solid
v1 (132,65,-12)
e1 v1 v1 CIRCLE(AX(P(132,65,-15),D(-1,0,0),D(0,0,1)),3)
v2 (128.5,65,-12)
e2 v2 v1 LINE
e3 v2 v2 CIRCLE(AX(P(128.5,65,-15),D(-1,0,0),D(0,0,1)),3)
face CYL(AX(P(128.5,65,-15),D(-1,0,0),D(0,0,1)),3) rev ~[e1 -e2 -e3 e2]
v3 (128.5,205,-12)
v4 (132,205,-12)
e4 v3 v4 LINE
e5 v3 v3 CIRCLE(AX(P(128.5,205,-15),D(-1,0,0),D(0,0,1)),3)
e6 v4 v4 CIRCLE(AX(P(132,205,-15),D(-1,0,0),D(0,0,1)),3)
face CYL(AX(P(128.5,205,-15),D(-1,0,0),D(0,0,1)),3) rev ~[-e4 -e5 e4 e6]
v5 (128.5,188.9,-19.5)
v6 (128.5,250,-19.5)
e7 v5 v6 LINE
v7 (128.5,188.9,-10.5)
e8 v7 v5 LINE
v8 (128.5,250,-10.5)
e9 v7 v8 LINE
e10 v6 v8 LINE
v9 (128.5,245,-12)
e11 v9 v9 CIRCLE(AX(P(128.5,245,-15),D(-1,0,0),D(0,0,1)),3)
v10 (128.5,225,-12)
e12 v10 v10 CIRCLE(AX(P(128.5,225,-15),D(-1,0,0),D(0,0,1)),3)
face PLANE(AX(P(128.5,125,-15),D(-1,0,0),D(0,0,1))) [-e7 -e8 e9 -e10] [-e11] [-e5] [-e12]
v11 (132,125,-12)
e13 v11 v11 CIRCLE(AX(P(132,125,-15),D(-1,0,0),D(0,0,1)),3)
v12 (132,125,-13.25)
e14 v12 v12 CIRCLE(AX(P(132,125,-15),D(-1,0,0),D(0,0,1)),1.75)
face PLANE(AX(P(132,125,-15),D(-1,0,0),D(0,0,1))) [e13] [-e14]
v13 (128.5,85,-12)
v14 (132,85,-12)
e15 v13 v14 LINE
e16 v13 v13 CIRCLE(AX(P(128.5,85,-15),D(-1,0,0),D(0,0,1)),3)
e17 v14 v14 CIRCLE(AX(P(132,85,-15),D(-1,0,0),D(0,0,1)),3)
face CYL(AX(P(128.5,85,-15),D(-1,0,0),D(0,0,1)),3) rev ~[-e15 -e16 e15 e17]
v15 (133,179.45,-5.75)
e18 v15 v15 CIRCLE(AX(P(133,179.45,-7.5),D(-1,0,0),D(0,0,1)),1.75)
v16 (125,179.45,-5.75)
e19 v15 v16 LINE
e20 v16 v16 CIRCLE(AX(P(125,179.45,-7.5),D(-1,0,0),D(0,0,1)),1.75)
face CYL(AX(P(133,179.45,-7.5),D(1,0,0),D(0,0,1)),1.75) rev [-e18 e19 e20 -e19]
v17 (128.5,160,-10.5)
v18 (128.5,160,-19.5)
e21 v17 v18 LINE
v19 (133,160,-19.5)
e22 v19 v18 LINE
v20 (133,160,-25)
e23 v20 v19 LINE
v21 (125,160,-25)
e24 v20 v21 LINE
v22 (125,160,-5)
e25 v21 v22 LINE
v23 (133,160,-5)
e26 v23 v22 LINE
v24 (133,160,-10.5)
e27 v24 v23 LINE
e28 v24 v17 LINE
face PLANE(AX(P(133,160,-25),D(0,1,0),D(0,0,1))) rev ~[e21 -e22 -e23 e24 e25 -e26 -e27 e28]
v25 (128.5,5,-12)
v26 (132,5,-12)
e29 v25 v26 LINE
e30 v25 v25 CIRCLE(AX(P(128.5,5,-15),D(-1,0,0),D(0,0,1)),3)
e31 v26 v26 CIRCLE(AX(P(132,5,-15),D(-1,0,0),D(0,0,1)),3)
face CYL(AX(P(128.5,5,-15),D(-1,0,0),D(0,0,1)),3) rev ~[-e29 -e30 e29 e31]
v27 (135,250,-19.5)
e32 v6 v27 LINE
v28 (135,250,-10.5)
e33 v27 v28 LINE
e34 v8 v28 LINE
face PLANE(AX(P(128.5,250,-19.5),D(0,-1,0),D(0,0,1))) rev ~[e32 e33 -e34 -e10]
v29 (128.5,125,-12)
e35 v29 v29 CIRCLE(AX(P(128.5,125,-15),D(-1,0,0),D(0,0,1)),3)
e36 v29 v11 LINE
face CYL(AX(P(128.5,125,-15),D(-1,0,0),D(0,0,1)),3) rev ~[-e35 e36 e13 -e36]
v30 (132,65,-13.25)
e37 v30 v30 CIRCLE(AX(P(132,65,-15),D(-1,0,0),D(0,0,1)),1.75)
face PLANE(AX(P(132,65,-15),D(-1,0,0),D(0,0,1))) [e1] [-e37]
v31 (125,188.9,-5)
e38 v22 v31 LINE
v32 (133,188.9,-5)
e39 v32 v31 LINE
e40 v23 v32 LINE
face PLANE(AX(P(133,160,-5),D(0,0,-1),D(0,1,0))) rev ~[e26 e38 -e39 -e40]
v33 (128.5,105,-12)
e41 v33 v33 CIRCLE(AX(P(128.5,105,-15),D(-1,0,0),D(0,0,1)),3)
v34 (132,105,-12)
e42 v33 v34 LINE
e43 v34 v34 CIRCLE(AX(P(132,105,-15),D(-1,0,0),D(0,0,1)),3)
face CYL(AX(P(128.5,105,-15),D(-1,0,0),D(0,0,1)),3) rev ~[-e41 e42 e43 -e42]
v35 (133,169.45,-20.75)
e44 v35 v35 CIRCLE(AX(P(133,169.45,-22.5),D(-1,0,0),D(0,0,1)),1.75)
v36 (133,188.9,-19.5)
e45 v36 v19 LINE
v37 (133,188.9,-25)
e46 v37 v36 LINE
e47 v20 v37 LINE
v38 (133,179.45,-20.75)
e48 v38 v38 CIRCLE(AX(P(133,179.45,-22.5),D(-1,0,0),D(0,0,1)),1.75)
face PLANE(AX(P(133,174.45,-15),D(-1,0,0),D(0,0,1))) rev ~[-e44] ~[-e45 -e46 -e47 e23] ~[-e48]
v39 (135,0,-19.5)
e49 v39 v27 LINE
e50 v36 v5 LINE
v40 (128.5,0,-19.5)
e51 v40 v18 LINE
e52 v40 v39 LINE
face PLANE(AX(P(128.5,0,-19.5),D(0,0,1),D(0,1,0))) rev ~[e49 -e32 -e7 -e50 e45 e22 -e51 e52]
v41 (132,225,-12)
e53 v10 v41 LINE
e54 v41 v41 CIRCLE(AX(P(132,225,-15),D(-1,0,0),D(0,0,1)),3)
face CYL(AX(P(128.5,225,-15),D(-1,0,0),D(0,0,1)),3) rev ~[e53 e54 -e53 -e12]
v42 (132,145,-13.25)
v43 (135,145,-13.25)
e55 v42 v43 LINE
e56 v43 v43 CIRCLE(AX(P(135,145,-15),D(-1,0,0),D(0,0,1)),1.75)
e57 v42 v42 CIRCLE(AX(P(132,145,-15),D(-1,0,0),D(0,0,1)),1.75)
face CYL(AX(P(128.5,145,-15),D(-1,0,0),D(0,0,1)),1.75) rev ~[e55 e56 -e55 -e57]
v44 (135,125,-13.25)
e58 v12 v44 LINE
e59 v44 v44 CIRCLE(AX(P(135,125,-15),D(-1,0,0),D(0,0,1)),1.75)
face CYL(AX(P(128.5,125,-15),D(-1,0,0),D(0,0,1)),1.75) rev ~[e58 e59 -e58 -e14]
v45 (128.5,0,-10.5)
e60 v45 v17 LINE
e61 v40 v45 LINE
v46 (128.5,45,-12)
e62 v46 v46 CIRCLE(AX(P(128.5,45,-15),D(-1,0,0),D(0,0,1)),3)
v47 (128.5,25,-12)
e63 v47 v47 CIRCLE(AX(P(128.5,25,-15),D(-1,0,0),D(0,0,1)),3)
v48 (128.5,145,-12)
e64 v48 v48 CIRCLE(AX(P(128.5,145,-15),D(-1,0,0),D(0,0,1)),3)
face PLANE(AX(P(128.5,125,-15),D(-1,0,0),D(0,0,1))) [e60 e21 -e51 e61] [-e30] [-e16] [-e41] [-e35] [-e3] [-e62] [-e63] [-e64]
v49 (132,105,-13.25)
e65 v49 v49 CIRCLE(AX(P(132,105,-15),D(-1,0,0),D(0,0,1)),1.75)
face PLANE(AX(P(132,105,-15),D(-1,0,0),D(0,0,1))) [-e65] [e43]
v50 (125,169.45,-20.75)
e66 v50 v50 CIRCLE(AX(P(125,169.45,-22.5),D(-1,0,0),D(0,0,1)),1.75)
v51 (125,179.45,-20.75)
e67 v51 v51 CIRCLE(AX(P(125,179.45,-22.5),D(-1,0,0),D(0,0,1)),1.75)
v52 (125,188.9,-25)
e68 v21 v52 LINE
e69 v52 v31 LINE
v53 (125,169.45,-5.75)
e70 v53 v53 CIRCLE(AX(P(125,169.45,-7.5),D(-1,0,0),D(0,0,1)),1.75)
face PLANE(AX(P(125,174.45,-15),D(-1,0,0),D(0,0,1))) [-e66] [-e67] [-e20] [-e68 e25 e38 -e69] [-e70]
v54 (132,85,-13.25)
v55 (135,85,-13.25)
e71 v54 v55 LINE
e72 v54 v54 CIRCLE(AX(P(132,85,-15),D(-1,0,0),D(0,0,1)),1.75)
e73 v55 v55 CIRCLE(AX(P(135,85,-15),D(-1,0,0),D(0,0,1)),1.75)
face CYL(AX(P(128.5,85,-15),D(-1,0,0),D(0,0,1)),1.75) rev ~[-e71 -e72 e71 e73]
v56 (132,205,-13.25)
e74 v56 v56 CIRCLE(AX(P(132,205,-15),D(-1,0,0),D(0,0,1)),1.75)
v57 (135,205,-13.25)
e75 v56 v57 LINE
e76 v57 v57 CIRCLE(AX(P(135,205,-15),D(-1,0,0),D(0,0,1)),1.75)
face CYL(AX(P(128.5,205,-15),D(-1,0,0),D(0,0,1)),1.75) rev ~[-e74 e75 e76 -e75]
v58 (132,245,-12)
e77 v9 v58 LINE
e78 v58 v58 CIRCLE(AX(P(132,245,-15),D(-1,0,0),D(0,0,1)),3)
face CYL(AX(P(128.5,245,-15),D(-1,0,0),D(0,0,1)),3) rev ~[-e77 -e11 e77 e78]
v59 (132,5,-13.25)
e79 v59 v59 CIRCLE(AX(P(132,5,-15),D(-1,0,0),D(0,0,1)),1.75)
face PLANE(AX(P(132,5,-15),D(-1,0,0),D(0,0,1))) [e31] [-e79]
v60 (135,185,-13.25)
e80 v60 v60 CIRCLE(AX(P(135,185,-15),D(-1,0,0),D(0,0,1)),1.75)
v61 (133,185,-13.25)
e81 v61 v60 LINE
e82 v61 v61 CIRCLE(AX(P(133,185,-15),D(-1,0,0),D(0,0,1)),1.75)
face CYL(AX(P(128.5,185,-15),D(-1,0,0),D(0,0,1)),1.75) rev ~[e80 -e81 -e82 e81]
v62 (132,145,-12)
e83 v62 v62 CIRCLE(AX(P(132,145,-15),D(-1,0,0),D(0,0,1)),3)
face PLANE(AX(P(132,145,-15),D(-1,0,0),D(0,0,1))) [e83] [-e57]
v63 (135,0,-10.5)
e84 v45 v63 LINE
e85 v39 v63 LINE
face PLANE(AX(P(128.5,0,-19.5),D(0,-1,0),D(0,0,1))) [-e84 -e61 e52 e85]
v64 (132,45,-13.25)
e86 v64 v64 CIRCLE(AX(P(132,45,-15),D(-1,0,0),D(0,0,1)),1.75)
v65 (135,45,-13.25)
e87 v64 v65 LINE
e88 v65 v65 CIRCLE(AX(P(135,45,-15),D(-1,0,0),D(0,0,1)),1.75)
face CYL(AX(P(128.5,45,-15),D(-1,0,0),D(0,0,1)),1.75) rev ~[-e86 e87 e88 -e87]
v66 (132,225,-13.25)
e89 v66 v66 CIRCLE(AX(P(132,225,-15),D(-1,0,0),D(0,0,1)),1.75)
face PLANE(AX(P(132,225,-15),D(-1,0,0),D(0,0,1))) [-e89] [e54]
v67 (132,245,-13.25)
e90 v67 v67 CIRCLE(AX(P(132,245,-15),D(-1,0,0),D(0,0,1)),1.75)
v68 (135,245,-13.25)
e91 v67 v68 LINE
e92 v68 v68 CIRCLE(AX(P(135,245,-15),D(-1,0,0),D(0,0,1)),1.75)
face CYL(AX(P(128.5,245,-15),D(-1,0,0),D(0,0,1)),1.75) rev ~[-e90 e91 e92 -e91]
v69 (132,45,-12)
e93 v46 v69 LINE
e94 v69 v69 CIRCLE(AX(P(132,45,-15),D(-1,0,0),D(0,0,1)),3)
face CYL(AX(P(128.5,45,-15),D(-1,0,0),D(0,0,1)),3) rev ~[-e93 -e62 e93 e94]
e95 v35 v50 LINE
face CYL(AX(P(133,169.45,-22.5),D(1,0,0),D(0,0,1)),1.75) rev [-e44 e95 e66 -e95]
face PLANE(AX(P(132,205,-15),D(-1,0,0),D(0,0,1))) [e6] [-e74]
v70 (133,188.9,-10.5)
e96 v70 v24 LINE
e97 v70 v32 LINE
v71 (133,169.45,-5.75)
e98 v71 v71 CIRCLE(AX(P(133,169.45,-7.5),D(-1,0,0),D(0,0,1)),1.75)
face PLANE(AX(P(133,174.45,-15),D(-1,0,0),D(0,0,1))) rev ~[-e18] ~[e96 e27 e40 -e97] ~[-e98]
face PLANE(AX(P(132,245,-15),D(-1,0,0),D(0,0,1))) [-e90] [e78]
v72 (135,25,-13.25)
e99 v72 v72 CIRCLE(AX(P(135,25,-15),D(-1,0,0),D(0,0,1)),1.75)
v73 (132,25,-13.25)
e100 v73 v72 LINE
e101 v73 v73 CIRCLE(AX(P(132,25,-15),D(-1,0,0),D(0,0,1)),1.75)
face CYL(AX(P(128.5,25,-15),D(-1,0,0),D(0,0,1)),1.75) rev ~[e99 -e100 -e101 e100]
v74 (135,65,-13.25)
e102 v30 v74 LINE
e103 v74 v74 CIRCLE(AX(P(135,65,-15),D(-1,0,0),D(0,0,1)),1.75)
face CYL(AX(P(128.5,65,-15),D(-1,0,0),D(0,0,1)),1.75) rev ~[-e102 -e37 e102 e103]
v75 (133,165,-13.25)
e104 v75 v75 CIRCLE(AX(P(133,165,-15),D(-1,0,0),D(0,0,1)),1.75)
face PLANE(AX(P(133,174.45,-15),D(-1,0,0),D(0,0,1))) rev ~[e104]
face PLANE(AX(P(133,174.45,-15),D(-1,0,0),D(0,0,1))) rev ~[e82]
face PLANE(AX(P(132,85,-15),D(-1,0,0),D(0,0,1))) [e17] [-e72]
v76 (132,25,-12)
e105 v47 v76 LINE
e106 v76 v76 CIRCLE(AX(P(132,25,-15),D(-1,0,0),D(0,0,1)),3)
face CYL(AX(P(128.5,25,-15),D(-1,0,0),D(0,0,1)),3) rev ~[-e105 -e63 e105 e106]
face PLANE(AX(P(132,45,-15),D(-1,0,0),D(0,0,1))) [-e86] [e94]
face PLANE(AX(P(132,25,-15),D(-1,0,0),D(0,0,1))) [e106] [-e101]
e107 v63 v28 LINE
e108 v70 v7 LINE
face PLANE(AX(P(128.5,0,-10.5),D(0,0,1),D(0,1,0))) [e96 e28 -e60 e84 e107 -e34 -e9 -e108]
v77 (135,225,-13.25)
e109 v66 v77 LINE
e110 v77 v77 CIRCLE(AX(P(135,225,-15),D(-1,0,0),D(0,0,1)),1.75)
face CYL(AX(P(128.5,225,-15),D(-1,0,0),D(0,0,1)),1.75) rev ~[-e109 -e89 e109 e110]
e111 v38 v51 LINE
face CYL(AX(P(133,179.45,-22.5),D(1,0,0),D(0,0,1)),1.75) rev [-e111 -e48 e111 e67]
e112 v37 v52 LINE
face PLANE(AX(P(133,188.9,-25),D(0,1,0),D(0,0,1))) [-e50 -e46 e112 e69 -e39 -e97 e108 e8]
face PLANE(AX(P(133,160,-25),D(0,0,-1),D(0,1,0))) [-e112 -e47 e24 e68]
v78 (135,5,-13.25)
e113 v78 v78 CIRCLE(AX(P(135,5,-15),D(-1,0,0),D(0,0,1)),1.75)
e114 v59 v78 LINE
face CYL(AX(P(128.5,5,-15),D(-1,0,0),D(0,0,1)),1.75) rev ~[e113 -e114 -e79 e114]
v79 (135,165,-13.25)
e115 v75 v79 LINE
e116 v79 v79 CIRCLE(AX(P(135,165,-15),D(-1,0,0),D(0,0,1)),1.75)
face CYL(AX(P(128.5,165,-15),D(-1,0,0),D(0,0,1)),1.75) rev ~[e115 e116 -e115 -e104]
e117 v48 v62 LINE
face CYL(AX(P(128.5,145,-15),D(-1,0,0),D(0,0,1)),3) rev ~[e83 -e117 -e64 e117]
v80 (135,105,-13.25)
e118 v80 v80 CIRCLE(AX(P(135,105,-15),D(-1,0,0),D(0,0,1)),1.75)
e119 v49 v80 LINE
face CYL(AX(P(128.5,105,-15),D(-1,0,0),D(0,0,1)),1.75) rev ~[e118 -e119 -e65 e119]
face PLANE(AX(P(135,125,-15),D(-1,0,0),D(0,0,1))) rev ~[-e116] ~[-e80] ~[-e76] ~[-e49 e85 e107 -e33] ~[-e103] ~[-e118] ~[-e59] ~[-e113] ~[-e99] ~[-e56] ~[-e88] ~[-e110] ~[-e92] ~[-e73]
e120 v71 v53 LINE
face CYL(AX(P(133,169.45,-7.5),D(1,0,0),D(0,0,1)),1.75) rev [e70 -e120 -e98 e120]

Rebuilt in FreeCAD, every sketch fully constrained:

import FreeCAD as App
import Part
import Sketcher

V = App.Vector
Q = App.Units.Quantity


def add_polygon(sketch, points):
    """Adds a closed chain of lines whose ends are joined by coincident constraints."""
    first, n = sketch.GeometryCount, len(points)
    for a, b in zip(points, points[1:] + points[:1]):
        sketch.addGeometry(Part.LineSegment(App.Vector(*a, 0), App.Vector(*b, 0)), False)
    for i in range(n):
        sketch.addConstraint(Sketcher.Constraint("Coincident", first + i, 2, first + (i + 1) % n, 1))

doc = App.newDocument("Part")
params = doc.addObject("Spreadsheet::Sheet", "Params")
for row, (alias, value) in enumerate([
    ("sketch1_width", "9 mm"),
    ("sketch1_height", "250 mm"),
    ("pad1_length", "6.5 mm"),
    ("sketch2_diameter", "3.5 mm"),
    ("pocket1_length", "6.5 mm"),
    ("linearpattern_pitch", "20 mm"),
    ("sketch3_diameter", "6 mm"),
    ("pocket2_length", "3.5 mm"),
    ("linearpattern2_pitch", "20 mm"),
    ("sketch4_diameter", "3.5 mm"),
    ("sketch4_width", "20 mm"),
    ("sketch4_height", "28.9 mm"),
    ("pad2_length", "8 mm"),
], start=1):
    params.set(f"A{row}", alias)
    params.set(f"B{row}", "=" + value)
    params.setAlias(f"B{row}", alias)

body = doc.addObject("PartDesign::Body", "Body")

sketch1 = body.newObject("Sketcher::SketchObject", "Sketch")
sketch1.AttachmentSupport = (doc.getObject("XY_Plane"), [""])
sketch1.MapMode = "FlatFace"
add_polygon(sketch1, [(-4, 250), (-4, 0), (4, 0), (4, 250)])
sketch1.addConstraint([
    Sketcher.Constraint("Vertical", 0),
    Sketcher.Constraint("Horizontal", 1),
    Sketcher.Constraint("Vertical", 2),
    Sketcher.Constraint("Horizontal", 3),
    Sketcher.Constraint("Symmetric", 0, 2, 1, 2, -1, 1),
    Sketcher.Constraint("DistanceX", 1, 1, 1, 2, Q("9 mm")),
    Sketcher.Constraint("DistanceY", 0, 2, 0, 1, Q("250 mm")),
])
sketch1.setExpression("Constraints[9]", "Params.sketch1_width")
sketch1.setExpression("Constraints[10]", "Params.sketch1_height")
pad1 = body.newObject("PartDesign::Pad", "Pad")
pad1.Profile = sketch1
pad1.setExpression("Length", "Params.pad1_length")
pad1.Reversed = True

sketch2 = body.newObject("Sketcher::SketchObject", "Sketch001")
sketch2.AttachmentSupport = (doc.getObject("XY_Plane"), [""])
sketch2.MapMode = "FlatFace"
sketch2.addGeometry(Part.Circle(V(0, 5, 0), V(0, 0, 1), 1.8), False)
sketch2.addConstraint([
    Sketcher.Constraint("PointOnObject", 0, 3, -2),
    Sketcher.Constraint("Diameter", 0, Q("3.5 mm")),
    Sketcher.Constraint("DistanceY", -1, 1, 0, 3, Q("5 mm")),
])
sketch2.setExpression("Constraints[1]", "Params.sketch2_diameter")
pocket1 = body.newObject("PartDesign::Pocket", "Pocket")
pocket1.Profile = sketch2
pocket1.setExpression("Length", "Params.pocket1_length")
doc.recompute()

linearpattern = body.newObject("PartDesign::LinearPattern", "LinearPattern")
linearpattern.Originals = [pocket1]
linearpattern.Direction = (doc.getObject("Y_Axis"), [""])
linearpattern.Mode = "offset"
linearpattern.setExpression("Offset", "Params.linearpattern_pitch")
linearpattern.Occurrences = 13
body.Tip = linearpattern

sketch3 = body.newObject("Sketcher::SketchObject", "Sketch002")
sketch3.AttachmentSupport = (doc.getObject("XY_Plane"), [""])
sketch3.MapMode = "FlatFace"
sketch3.addGeometry(Part.Circle(V(0, 5, 0), V(0, 0, 1), 3), False)
sketch3.addConstraint([
    Sketcher.Constraint("PointOnObject", 0, 3, -2),
    Sketcher.Constraint("Diameter", 0, Q("6 mm")),
    Sketcher.Constraint("DistanceY", -1, 1, 0, 3, Q("5 mm")),
])
sketch3.setExpression("Constraints[1]", "Params.sketch3_diameter")
pocket2 = body.newObject("PartDesign::Pocket", "Pocket001")
pocket2.Profile = sketch3
pocket2.setExpression("Length", "Params.pocket2_length")
doc.recompute()

linearpattern2 = body.newObject("PartDesign::LinearPattern", "LinearPattern001")
linearpattern2.Originals = [pocket2]
linearpattern2.Direction = (doc.getObject("Y_Axis"), [""])
linearpattern2.Mode = "offset"
linearpattern2.setExpression("Offset", "Params.linearpattern2_pitch")
linearpattern2.Occurrences = 13
body.Tip = linearpattern2

sketch4 = body.newObject("Sketcher::SketchObject", "Sketch003")
sketch4.AttachmentSupport = (doc.getObject("XY_Plane"), [""])
sketch4.MapMode = "FlatFace"
sketch4.AttachmentOffset = App.Placement(V(0, 0, -4.5), App.Rotation())
add_polygon(sketch4, [(-10, 188.9), (-10, 160), (10, 160), (10, 188.9)])
sketch4.addGeometry(Part.Circle(V(-7.5, 169.4, 0), V(0, 0, 1), 1.8), False)
sketch4.addGeometry(Part.Circle(V(7.5, 169.4, 0), V(0, 0, 1), 1.8), False)
sketch4.addGeometry(Part.Circle(V(-7.5, 179.4, 0), V(0, 0, 1), 1.8), False)
sketch4.addGeometry(Part.Circle(V(7.5, 179.4, 0), V(0, 0, 1), 1.8), False)
sketch4.addConstraint([
    Sketcher.Constraint("Vertical", 0),
    Sketcher.Constraint("Horizontal", 1),
    Sketcher.Constraint("Vertical", 2),
    Sketcher.Constraint("Horizontal", 3),
    Sketcher.Constraint("Equal", 4, 5),
    Sketcher.Constraint("Equal", 5, 6),
    Sketcher.Constraint("Equal", 6, 7),
    Sketcher.Constraint("Symmetric", 4, 3, 5, 3, -2),
    Sketcher.Constraint("Symmetric", 6, 3, 7, 3, -2),
    Sketcher.Constraint("Vertical", 4, 3, 6, 3),
    Sketcher.Constraint("Diameter", 4, Q("3.5 mm")),
    Sketcher.Constraint("DistanceX", 1, 1, 1, 2, Q("20 mm")),
    Sketcher.Constraint("DistanceY", 0, 2, 0, 1, Q("28.9 mm")),
    Sketcher.Constraint("DistanceX", 0, 2, -1, 1, Q("10 mm")),
    Sketcher.Constraint("DistanceY", -1, 1, 0, 2, Q("160 mm")),
    Sketcher.Constraint("DistanceX", 4, 3, 5, 3, Q("15 mm")),
    Sketcher.Constraint("DistanceY", 4, 3, 6, 3, Q("10 mm")),
    Sketcher.Constraint("DistanceY", -1, 1, 4, 3, Q("169.45 mm")),
])
sketch4.setExpression("Constraints[14]", "Params.sketch4_diameter")
sketch4.setExpression("Constraints[15]", "Params.sketch4_width")
sketch4.setExpression("Constraints[16]", "Params.sketch4_height")
pad2 = body.newObject("PartDesign::Pad", "Pad001")
pad2.Profile = sketch4
pad2.setExpression("Length", "Params.pad2_length")
body2 = doc.addObject("PartDesign::Body", "Body001")
doc.recompute()

body.Placement = App.Placement(V(128.5, 0, -15), App.Rotation(V(0, -1, 0), 90))
boolean = body2.newObject("PartDesign::Boolean", "Boolean")
boolean.Type = "Fuse"
boolean.addObjects([body])

doc.recompute()
